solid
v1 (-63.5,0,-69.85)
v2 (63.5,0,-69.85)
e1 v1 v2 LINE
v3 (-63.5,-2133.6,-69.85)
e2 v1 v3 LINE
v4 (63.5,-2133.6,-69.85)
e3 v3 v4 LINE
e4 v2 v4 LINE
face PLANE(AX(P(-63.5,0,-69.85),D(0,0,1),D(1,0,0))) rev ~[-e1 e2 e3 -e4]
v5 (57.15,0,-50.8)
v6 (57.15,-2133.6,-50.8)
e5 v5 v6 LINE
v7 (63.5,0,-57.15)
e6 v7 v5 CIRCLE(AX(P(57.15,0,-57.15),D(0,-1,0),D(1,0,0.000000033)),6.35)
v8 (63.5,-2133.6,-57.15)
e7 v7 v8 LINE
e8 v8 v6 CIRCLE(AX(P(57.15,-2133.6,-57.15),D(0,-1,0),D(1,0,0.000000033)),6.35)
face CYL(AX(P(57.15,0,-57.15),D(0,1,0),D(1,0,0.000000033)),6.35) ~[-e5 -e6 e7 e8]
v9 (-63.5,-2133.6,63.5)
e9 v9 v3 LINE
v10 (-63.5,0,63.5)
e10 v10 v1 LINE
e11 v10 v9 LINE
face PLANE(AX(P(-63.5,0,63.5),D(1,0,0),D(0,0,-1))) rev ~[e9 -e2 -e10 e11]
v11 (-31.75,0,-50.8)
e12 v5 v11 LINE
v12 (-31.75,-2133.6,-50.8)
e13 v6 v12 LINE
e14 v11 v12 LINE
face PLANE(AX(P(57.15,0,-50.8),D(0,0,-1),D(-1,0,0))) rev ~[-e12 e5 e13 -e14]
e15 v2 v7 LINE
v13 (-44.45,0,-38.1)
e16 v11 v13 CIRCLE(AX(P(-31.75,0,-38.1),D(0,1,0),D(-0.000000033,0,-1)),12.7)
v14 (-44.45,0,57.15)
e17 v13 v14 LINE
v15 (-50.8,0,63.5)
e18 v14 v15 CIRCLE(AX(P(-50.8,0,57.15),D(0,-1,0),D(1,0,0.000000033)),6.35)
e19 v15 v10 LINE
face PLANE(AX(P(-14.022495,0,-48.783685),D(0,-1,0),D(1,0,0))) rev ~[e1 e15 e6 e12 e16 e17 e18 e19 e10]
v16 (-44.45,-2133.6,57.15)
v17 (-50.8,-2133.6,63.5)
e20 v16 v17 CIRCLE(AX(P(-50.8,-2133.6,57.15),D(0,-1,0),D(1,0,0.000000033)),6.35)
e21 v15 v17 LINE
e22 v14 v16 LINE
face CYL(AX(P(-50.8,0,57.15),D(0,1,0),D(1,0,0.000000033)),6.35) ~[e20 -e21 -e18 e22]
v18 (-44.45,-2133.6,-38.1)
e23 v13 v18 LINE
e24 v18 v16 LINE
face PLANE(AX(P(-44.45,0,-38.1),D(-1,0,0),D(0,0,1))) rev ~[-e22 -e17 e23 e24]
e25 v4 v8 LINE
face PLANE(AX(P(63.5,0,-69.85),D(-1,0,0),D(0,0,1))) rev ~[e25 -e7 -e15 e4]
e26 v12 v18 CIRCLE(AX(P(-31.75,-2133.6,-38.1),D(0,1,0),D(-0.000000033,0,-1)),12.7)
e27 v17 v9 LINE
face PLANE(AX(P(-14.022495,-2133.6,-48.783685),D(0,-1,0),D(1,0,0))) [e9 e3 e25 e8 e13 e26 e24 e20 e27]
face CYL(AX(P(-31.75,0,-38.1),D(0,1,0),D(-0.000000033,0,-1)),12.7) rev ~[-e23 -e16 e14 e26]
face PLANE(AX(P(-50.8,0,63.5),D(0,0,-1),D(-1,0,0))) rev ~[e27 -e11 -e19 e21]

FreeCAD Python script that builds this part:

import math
import FreeCAD as App
import Part
import Sketcher
Q = App.Units.Quantity

doc = App.newDocument("Part")
body = doc.addObject("PartDesign::Body", "Body")

# Sketch on XZ plane
sketch1 = body.newObject("Sketcher::SketchObject", "Sketch")
sketch1.AttachmentSupport = (doc.getObject("XZ_Plane"), [""])
sketch1.MapMode = "FlatFace"
sketch1.addGeometry(Part.LineSegment(App.Vector(-44, -38, 0), App.Vector(-44, 57, 0)), False)
sketch1.addGeometry(Part.ArcOfCircle(Part.Circle(App.Vector(-51, 57, 0), App.Vector(0, 0, 1), 6), math.radians(0), math.radians(90)), False)
sketch1.addGeometry(Part.LineSegment(App.Vector(-51, 64, 0), App.Vector(-64, 64, 0)), False)
sketch1.addGeometry(Part.LineSegment(App.Vector(-64, 64, 0), App.Vector(-64, -70, 0)), False)
sketch1.addGeometry(Part.LineSegment(App.Vector(-64, -70, 0), App.Vector(64, -70, 0)), False)
sketch1.addGeometry(Part.LineSegment(App.Vector(64, -70, 0), App.Vector(64, -57, 0)), False)
sketch1.addGeometry(Part.ArcOfCircle(Part.Circle(App.Vector(57, -57, 0), App.Vector(0, 0, 1), 6), math.radians(0), math.radians(90)), False)
sketch1.addGeometry(Part.LineSegment(App.Vector(57, -51, 0), App.Vector(-32, -51, 0)), False)
sketch1.addGeometry(Part.ArcOfCircle(Part.Circle(App.Vector(-32, -38, 0), App.Vector(0, 0, 1), 13), math.radians(-180), math.radians(-90)), False)
sketch1.addConstraint(Sketcher.Constraint("Tangent", 0, 2, 1, 1))
sketch1.addConstraint(Sketcher.Constraint("Tangent", 1, 2, 2, 1))
sketch1.addConstraint(Sketcher.Constraint("Coincident", 2, 2, 3, 1))
sketch1.addConstraint(Sketcher.Constraint("Coincident", 3, 2, 4, 1))
sketch1.addConstraint(Sketcher.Constraint("Coincident", 4, 2, 5, 1))
sketch1.addConstraint(Sketcher.Constraint("Tangent", 5, 2, 6, 1))
sketch1.addConstraint(Sketcher.Constraint("Tangent", 6, 2, 7, 1))
sketch1.addConstraint(Sketcher.Constraint("Tangent", 7, 2, 8, 2))
sketch1.addConstraint(Sketcher.Constraint("Tangent", 8, 1, 0, 1))
sketch1.addConstraint(Sketcher.Constraint("Vertical", 0))
sketch1.addConstraint(Sketcher.Constraint("Horizontal", 2))
sketch1.addConstraint(Sketcher.Constraint("Vertical", 3))
sketch1.addConstraint(Sketcher.Constraint("Horizontal", 4))
sketch1.addConstraint(Sketcher.Constraint("Vertical", 5))
sketch1.addConstraint(Sketcher.Constraint("Horizontal", 7))
sketch1.addConstraint(Sketcher.Constraint("Equal", 1, 6))
sketch1.addConstraint(Sketcher.Constraint("Equal", 2, 5))
sketch1.addConstraint(Sketcher.Constraint("Radius", 8, Q("0.5 in")))
sketch1.addConstraint(Sketcher.Constraint("DistanceX", 4, 1, 4, 2, Q("5 in")))
sketch1.addConstraint(Sketcher.Constraint("Radius", 1, Q("0.25 in")))
sketch1.addConstraint(Sketcher.Constraint("DistanceX", 2, 2, 2, 1, Q("0.5 in")))
sketch1.addConstraint(Sketcher.Constraint("DistanceX", 1, 3, -1, 1, Q("2 in")))
sketch1.addConstraint(Sketcher.Constraint("DistanceY", 6, 2, -1, 1, Q("2 in")))
sketch1.addConstraint(Sketcher.Constraint("DistanceY", 8, 3, 1, 2, Q("4 in")))
pad1 = body.newObject("PartDesign::Pad", "Pad")
pad1.Profile = sketch1
pad1.Length = Q("84 in")

doc.recompute()
